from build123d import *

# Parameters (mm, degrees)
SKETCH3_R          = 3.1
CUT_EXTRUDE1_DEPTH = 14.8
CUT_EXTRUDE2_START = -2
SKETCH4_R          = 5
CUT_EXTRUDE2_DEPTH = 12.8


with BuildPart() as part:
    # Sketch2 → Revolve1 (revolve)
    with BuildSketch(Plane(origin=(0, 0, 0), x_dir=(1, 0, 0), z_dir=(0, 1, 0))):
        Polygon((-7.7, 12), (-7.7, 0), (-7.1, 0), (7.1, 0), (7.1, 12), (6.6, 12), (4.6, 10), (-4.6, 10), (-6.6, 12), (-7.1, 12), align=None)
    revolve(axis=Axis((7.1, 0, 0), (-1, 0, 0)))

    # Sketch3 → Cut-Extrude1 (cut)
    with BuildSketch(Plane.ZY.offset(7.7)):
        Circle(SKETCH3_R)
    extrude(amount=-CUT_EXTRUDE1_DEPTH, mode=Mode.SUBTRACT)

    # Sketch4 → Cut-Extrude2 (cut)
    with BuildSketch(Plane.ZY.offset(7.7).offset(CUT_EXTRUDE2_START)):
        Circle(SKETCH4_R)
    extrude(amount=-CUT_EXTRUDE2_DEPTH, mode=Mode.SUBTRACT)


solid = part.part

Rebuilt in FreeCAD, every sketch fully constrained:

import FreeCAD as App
import Part
import Sketcher

V = App.Vector


def add_polygon(sketch, points):
    """Adds a closed chain of lines whose ends are joined by coincident constraints."""
    first, n = sketch.GeometryCount, len(points)
    for a, b in zip(points, points[1:] + points[:1]):
        sketch.addGeometry(Part.LineSegment(App.Vector(*a, 0), App.Vector(*b, 0)), False)
    for i in range(n):
        sketch.addConstraint(Sketcher.Constraint("Coincident", first + i, 2, first + (i + 1) % n, 1))

doc = App.newDocument("Part")
body = doc.addObject("PartDesign::Body", "Body")

sketch1 = body.newObject("Sketcher::SketchObject", "Sketch")
sketch1.AttachmentSupport = (doc.getObject("XZ_Plane"), [""])
sketch1.MapMode = "FlatFace"
add_polygon(sketch1, [(-7.7, -12), (-7.7, 0), (7.1, 0), (7.1, -12), (6.6, -12), (4.6, -10), (-4.6, -10), (-6.6, -12)])
sketch1.addConstraint([
    Sketcher.Constraint("Vertical", 0),
    Sketcher.Constraint("Horizontal", 1),
    Sketcher.Constraint("Vertical", 2),
    Sketcher.Constraint("Horizontal", 3),
    Sketcher.Constraint("Horizontal", 5),
    Sketcher.Constraint("Horizontal", 7),
    Sketcher.Constraint("Symmetric", 3, 2, 6, 2, -2),
    Sketcher.Constraint("PointOnObject", 0, 2, -1),
    Sketcher.Constraint("Perpendicular", 4, 6),
    Sketcher.Constraint("Equal", 4, 6),
    Sketcher.Constraint("DistanceY", 0, 1, 0, 2, 12.0),
    Sketcher.Constraint("DistanceX", 1, 1, 1, 2, 14.8),
    Sketcher.Constraint("DistanceX", 3, 2, 3, 1, 0.5),
    Sketcher.Constraint("DistanceX", 5, 2, 5, 1, 9.2),
    Sketcher.Constraint("DistanceX", 7, 2, 7, 1, 1.1),
])
revolution = body.newObject("PartDesign::Revolution", "Revolution")
revolution.Profile = sketch1
revolution.ReferenceAxis = (sketch1, ["H_Axis"])
revolution.Angle = 360

sketch2 = body.newObject("Sketcher::SketchObject", "Sketch001")
sketch2.AttachmentSupport = (doc.getObject("YZ_Plane"), [""])
sketch2.MapMode = "FlatFace"
sketch2.AttachmentOffset = App.Placement(V(0, 0, -7.7), App.Rotation())
sketch2.addGeometry(Part.Circle(V(0, 0, 0), V(0, 0, 1), 3.1), False)
sketch2.addConstraint([
    Sketcher.Constraint("Coincident", 0, 3, -1, 1),
    Sketcher.Constraint("Diameter", 0, 6.2),
])
pocket1 = body.newObject("PartDesign::Pocket", "Pocket")
pocket1.Profile = sketch2
pocket1.Length = 14.8
pocket1.Reversed = True

sketch3 = body.newObject("Sketcher::SketchObject", "Sketch002")
sketch3.AttachmentSupport = (doc.getObject("YZ_Plane"), [""])
sketch3.MapMode = "FlatFace"
sketch3.AttachmentOffset = App.Placement(V(0, 0, -5.7), App.Rotation())
sketch3.addGeometry(Part.Circle(V(0, 0, 0), V(0, 0, 1), 5), False)
sketch3.addConstraint([
    Sketcher.Constraint("Coincident", 0, 3, -1, 1),
    Sketcher.Constraint("Diameter", 0, 10.0),
])
pocket2 = body.newObject("PartDesign::Pocket", "Pocket001")
pocket2.Profile = sketch3
pocket2.Length = 12.8
pocket2.Reversed = True

doc.recompute()
